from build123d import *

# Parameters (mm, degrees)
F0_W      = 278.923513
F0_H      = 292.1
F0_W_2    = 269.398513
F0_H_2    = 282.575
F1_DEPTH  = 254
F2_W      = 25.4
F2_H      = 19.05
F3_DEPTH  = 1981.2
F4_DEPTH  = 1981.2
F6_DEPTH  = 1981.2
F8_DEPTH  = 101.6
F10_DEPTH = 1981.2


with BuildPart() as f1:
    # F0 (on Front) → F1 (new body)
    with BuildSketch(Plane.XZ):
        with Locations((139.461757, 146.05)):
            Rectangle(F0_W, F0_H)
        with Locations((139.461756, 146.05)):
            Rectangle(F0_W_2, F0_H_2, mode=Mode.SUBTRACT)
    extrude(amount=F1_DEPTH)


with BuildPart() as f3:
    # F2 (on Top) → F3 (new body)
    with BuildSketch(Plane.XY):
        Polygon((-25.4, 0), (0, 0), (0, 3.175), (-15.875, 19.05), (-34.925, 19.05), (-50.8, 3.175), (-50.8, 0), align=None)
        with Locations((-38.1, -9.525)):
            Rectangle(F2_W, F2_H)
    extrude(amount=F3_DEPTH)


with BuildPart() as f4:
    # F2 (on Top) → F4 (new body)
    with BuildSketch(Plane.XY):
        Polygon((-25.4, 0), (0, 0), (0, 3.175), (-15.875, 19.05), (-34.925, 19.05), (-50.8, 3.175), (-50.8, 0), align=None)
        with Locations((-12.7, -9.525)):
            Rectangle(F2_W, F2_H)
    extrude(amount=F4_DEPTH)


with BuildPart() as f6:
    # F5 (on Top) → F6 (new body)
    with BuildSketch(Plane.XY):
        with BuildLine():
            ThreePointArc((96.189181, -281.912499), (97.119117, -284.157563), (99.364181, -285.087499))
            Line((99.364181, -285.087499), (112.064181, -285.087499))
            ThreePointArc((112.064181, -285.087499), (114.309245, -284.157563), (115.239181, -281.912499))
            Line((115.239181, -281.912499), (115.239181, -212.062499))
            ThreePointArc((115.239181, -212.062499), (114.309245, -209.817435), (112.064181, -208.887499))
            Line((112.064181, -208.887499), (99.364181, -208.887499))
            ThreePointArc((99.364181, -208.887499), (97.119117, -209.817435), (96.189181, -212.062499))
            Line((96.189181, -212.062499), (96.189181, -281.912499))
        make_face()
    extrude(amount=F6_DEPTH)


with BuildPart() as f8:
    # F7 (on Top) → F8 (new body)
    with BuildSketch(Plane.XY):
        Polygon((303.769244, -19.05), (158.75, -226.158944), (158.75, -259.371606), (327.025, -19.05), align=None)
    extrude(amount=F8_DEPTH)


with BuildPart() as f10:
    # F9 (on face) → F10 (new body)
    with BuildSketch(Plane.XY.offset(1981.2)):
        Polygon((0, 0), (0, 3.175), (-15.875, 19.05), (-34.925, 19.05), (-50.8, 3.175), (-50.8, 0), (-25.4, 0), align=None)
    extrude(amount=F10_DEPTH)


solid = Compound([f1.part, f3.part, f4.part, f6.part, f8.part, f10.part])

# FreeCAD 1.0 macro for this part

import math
import FreeCAD as App
import Part
import Sketcher
Q = App.Units.Quantity

doc = App.newDocument("Part")
params = doc.addObject("Spreadsheet::Sheet", "Params")
for row, (alias, value) in enumerate([
    ("sketch1_height", "11.5 in"),
    ("sketch1_height2", "11.125 in"),
    ("pad1_length", "10 in"),
    ("sketch2_width", "1 in"),
    ("sketch2_width2", "0.75 in"),
    ("pad2_length", "78 in"),
    ("sketch3_width", "1 in"),
    ("sketch3_width2", "0.75 in"),
    ("pad3_length", "78 in"),
    ("sketch4_width", "0.5 in"),
    ("sketch4_radius", "0.125 in"),
    ("sketch4_height", "2.75 in"),
    ("pad4_length", "78 in"),
    ("pad5_length", "4 in"),
    ("sketch6_width", "2 in"),
    ("sketch6_width2", "0.75 in"),
    ("sketch6_height", "0.125 in"),
    ("pad6_length", "78 in"),
], start=1):
    params.set(f"A{row}", alias)
    params.set(f"B{row}", "=" + value)
    params.setAlias(f"B{row}", alias)

body = doc.addObject("PartDesign::Body", "Body")

sketch1 = doc.addObject("Sketcher::SketchObject", "Sketch")
body.addObject(sketch1)
sketch1.AttachmentSupport = (doc.XZ_Plane, [""])
sketch1.MapMode = "FlatFace"
sketch1.addGeometry(Part.LineSegment(App.Vector(0, 292, 0), App.Vector(0, 0, 0)), False)
sketch1.addGeometry(Part.LineSegment(App.Vector(0, 0, 0), App.Vector(279, 0, 0)), False)
sketch1.addGeometry(Part.LineSegment(App.Vector(279, 0, 0), App.Vector(279, 292, 0)), False)
sketch1.addGeometry(Part.LineSegment(App.Vector(279, 292, 0), App.Vector(0, 292, 0)), False)
sketch1.addGeometry(Part.LineSegment(App.Vector(274, 5, 0), App.Vector(5, 5, 0)), False)
sketch1.addGeometry(Part.LineSegment(App.Vector(5, 5, 0), App.Vector(5, 287, 0)), False)
sketch1.addGeometry(Part.LineSegment(App.Vector(5, 287, 0), App.Vector(274, 287, 0)), False)
sketch1.addGeometry(Part.LineSegment(App.Vector(274, 287, 0), App.Vector(274, 5, 0)), False)
sketch1.addConstraint(Sketcher.Constraint("Coincident", 0, 2, 1, 1))
sketch1.addConstraint(Sketcher.Constraint("Coincident", 1, 2, 2, 1))
sketch1.addConstraint(Sketcher.Constraint("Coincident", 2, 2, 3, 1))
sketch1.addConstraint(Sketcher.Constraint("Coincident", 3, 2, 0, 1))
sketch1.addConstraint(Sketcher.Constraint("Coincident", 4, 2, 5, 1))
sketch1.addConstraint(Sketcher.Constraint("Coincident", 5, 2, 6, 1))
sketch1.addConstraint(Sketcher.Constraint("Coincident", 6, 2, 7, 1))
sketch1.addConstraint(Sketcher.Constraint("Coincident", 7, 2, 4, 1))
sketch1.addConstraint(Sketcher.Constraint("Vertical", 0))
sketch1.addConstraint(Sketcher.Constraint("Horizontal", 1))
sketch1.addConstraint(Sketcher.Constraint("Vertical", 2))
sketch1.addConstraint(Sketcher.Constraint("Horizontal", 3))
sketch1.addConstraint(Sketcher.Constraint("Horizontal", 4))
sketch1.addConstraint(Sketcher.Constraint("Vertical", 5))
sketch1.addConstraint(Sketcher.Constraint("Horizontal", 6))
sketch1.addConstraint(Sketcher.Constraint("Vertical", 7))
sketch1.addConstraint(Sketcher.Constraint("Coincident", 0, 2, -1, 1))
sketch1.addConstraint(Sketcher.Constraint("DistanceY", 0, 2, 0, 1, Q("11.5 in")))
sketch1.addConstraint(Sketcher.Constraint("DistanceY", 5, 1, 5, 2, Q("11.125 in")))
sketch1.addConstraint(Sketcher.Constraint("DistanceX", -1, 1, 4, 2, Q("0.1875 in")))
sketch1.addConstraint(Sketcher.Constraint("DistanceY", -1, 1, 4, 2, Q("0.1875 in")))
sketch1.addConstraint(Sketcher.Constraint("DistanceX", 6, 2, 2, 2, Q("0.1875 in")))
sketch1.addConstraint(Sketcher.Constraint("DistanceX", 1, 1, 1, 2, 278.923513))
sketch1.setExpression("Constraints[17]", "Params.sketch1_height")
sketch1.setExpression("Constraints[18]", "Params.sketch1_height2")
pad1 = doc.addObject("PartDesign::Pad", "Pad")
body.addObject(pad1)
pad1.Profile = sketch1
pad1.setExpression("Length", "Params.pad1_length")
body2 = doc.addObject("PartDesign::Body", "Body001")

sketch2 = doc.addObject("Sketcher::SketchObject", "Sketch001")
body2.addObject(sketch2)
sketch2.AttachmentSupport = (doc.getObject("XY_Plane001"), [""])
sketch2.MapMode = "FlatFace"
sketch2.addGeometry(Part.LineSegment(App.Vector(0, 0, 0), App.Vector(0, 3.2, 0)), False)
sketch2.addGeometry(Part.LineSegment(App.Vector(0, 3.2, 0), App.Vector(-15.9, 19.1, 0)), False)
sketch2.addGeometry(Part.LineSegment(App.Vector(-15.9, 19.1, 0), App.Vector(-34.9, 19.1, 0)), False)
sketch2.addGeometry(Part.LineSegment(App.Vector(-34.9, 19.1, 0), App.Vector(-50.8, 3.2, 0)), False)
sketch2.addGeometry(Part.LineSegment(App.Vector(-50.8, 3.2, 0), App.Vector(-50.8, -19.1, 0)), False)
sketch2.addGeometry(Part.LineSegment(App.Vector(-50.8, -19.1, 0), App.Vector(-25.4, -19.1, 0)), False)
sketch2.addGeometry(Part.LineSegment(App.Vector(-25.4, -19.1, 0), App.Vector(-25.4, 0, 0)), False)
sketch2.addGeometry(Part.LineSegment(App.Vector(-25.4, 0, 0), App.Vector(0, 0, 0)), False)
sketch2.addConstraint(Sketcher.Constraint("Coincident", 0, 2, 1, 1))
sketch2.addConstraint(Sketcher.Constraint("Coincident", 1, 2, 2, 1))
sketch2.addConstraint(Sketcher.Constraint("Coincident", 2, 2, 3, 1))
sketch2.addConstraint(Sketcher.Constraint("Coincident", 3, 2, 4, 1))
sketch2.addConstraint(Sketcher.Constraint("Coincident", 4, 2, 5, 1))
sketch2.addConstraint(Sketcher.Constraint("Coincident", 5, 2, 6, 1))
sketch2.addConstraint(Sketcher.Constraint("Coincident", 6, 2, 7, 1))
sketch2.addConstraint(Sketcher.Constraint("Coincident", 7, 2, 0, 1))
sketch2.addConstraint(Sketcher.Constraint("Vertical", 0))
sketch2.addConstraint(Sketcher.Constraint("Horizontal", 2))
sketch2.addConstraint(Sketcher.Constraint("Vertical", 4))
sketch2.addConstraint(Sketcher.Constraint("Horizontal", 5))
sketch2.addConstraint(Sketcher.Constraint("Vertical", 6))
sketch2.addConstraint(Sketcher.Constraint("Horizontal", 7))
sketch2.addConstraint(Sketcher.Constraint("Coincident", 7, 2, -1, 1))
sketch2.addConstraint(Sketcher.Constraint("Perpendicular", 1, 3))
sketch2.addConstraint(Sketcher.Constraint("Horizontal", 0, 2, 3, 2))
sketch2.addConstraint(Sketcher.Constraint("Equal", 5, 7))
sketch2.addConstraint(Sketcher.Constraint("Equal", 2, 6))
sketch2.addConstraint(Sketcher.Constraint("Equal", 1, 3))
sketch2.addConstraint(Sketcher.Constraint("DistanceX", 5, 1, 5, 2, Q("1 in")))
sketch2.addConstraint(Sketcher.Constraint("DistanceX", 2, 2, 2, 1, Q("0.75 in")))
sketch2.addConstraint(Sketcher.Constraint("DistanceY", 4, 2, 2, 2, Q("1.5 in")))
sketch2.setExpression("Constraints[20]", "Params.sketch2_width")
sketch2.setExpression("Constraints[21]", "Params.sketch2_width2")
pad2 = doc.addObject("PartDesign::Pad", "Pad001")
body2.addObject(pad2)
pad2.Profile = sketch2
pad2.setExpression("Length", "Params.pad2_length")
body3 = doc.addObject("PartDesign::Body", "Body002")

sketch3 = doc.addObject("Sketcher::SketchObject", "Sketch002")
body3.addObject(sketch3)
sketch3.AttachmentSupport = (doc.getObject("XY_Plane002"), [""])
sketch3.MapMode = "FlatFace"
sketch3.addGeometry(Part.LineSegment(App.Vector(0, 3.2, 0), App.Vector(-15.9, 19.1, 0)), False)
sketch3.addGeometry(Part.LineSegment(App.Vector(-15.9, 19.1, 0), App.Vector(-34.9, 19.1, 0)), False)
sketch3.addGeometry(Part.LineSegment(App.Vector(-34.9, 19.1, 0), App.Vector(-50.8, 3.2, 0)), False)
sketch3.addGeometry(Part.LineSegment(App.Vector(-50.8, 3.2, 0), App.Vector(-50.8, 0, 0)), False)
sketch3.addGeometry(Part.LineSegment(App.Vector(-50.8, 0, 0), App.Vector(-25.4, 0, 0)), False)
sketch3.addGeometry(Part.LineSegment(App.Vector(-25.4, 0, 0), App.Vector(-25.4, -19.1, 0)), False)
sketch3.addGeometry(Part.LineSegment(App.Vector(-25.4, -19.1, 0), App.Vector(0, -19.1, 0)), False)
sketch3.addGeometry(Part.LineSegment(App.Vector(0, -19.1, 0), App.Vector(0, 3.2, 0)), False)
sketch3.addConstraint(Sketcher.Constraint("Coincident", 0, 2, 1, 1))
sketch3.addConstraint(Sketcher.Constraint("Coincident", 1, 2, 2, 1))
sketch3.addConstraint(Sketcher.Constraint("Coincident", 2, 2, 3, 1))
sketch3.addConstraint(Sketcher.Constraint("Coincident", 3, 2, 4, 1))
sketch3.addConstraint(Sketcher.Constraint("Coincident", 4, 2, 5, 1))
sketch3.addConstraint(Sketcher.Constraint("Coincident", 5, 2, 6, 1))
sketch3.addConstraint(Sketcher.Constraint("Coincident", 6, 2, 7, 1))
sketch3.addConstraint(Sketcher.Constraint("Coincident", 7, 2, 0, 1))
sketch3.addConstraint(Sketcher.Constraint("Horizontal", 1))
sketch3.addConstraint(Sketcher.Constraint("Vertical", 3))
sketch3.addConstraint(Sketcher.Constraint("Horizontal", 4))
sketch3.addConstraint(Sketcher.Constraint("Vertical", 5))
sketch3.addConstraint(Sketcher.Constraint("Horizontal", 6))
sketch3.addConstraint(Sketcher.Constraint("Vertical", 7))
sketch3.addConstraint(Sketcher.Constraint("PointOnObject", 3, 2, -1))
sketch3.addConstraint(Sketcher.Constraint("PointOnObject", 6, 2, -2))
sketch3.addConstraint(Sketcher.Constraint("Perpendicular", 0, 2))
sketch3.addConstraint(Sketcher.Constraint("Horizontal", 2, 2, 7, 2))
sketch3.addConstraint(Sketcher.Constraint("Equal", 4, 6))
sketch3.addConstraint(Sketcher.Constraint("Equal", 1, 5))
sketch3.addConstraint(Sketcher.Constraint("Equal", 0, 2))
sketch3.addConstraint(Sketcher.Constraint("DistanceX", 4, 1, 4, 2, Q("1 in")))
sketch3.addConstraint(Sketcher.Constraint("DistanceX", 1, 2, 1, 1, Q("0.75 in")))
sketch3.addConstraint(Sketcher.Constraint("DistanceY", 5, 2, 0, 2, Q("1.5 in")))
sketch3.setExpression("Constraints[21]", "Params.sketch3_width")
sketch3.setExpression("Constraints[22]", "Params.sketch3_width2")
pad3 = doc.addObject("PartDesign::Pad", "Pad002")
body3.addObject(pad3)
pad3.Profile = sketch3
pad3.setExpression("Length", "Params.pad3_length")
body4 = doc.addObject("PartDesign::Body", "Body003")

sketch4 = doc.addObject("Sketcher::SketchObject", "Sketch003")
body4.addObject(sketch4)
sketch4.AttachmentSupport = (doc.getObject("XY_Plane003"), [""])
sketch4.MapMode = "FlatFace"
sketch4.addGeometry(Part.ArcOfCircle(Part.Circle(App.Vector(99.4, -281.9, 0), App.Vector(0, 0, 1), 3.2), math.radians(-180), math.radians(-90)), False)
sketch4.addGeometry(Part.LineSegment(App.Vector(99.4, -285.1, 0), App.Vector(112.1, -285.1, 0)), False)
sketch4.addGeometry(Part.ArcOfCircle(Part.Circle(App.Vector(112.1, -281.9, 0), App.Vector(0, 0, 1), 3.2), math.radians(-90), math.radians(0)), False)
sketch4.addGeometry(Part.LineSegment(App.Vector(115.2, -281.9, 0), App.Vector(115.2, -212.1, 0)), False)
sketch4.addGeometry(Part.ArcOfCircle(Part.Circle(App.Vector(112.1, -212.1, 0), App.Vector(0, 0, 1), 3.2), math.radians(0), math.radians(90)), False)
sketch4.addGeometry(Part.LineSegment(App.Vector(112.1, -208.9, 0), App.Vector(99.4, -208.9, 0)), False)
sketch4.addGeometry(Part.ArcOfCircle(Part.Circle(App.Vector(99.4, -212.1, 0), App.Vector(0, 0, 1), 3.2), math.radians(90), math.radians(180)), False)
sketch4.addGeometry(Part.LineSegment(App.Vector(96.2, -212.1, 0), App.Vector(96.2, -281.9, 0)), False)
sketch4.addConstraint(Sketcher.Constraint("Tangent", 0, 2, 1, 1))
sketch4.addConstraint(Sketcher.Constraint("Tangent", 1, 2, 2, 1))
sketch4.addConstraint(Sketcher.Constraint("Tangent", 2, 2, 3, 1))
sketch4.addConstraint(Sketcher.Constraint("Tangent", 3, 2, 4, 1))
sketch4.addConstraint(Sketcher.Constraint("Tangent", 4, 2, 5, 1))
sketch4.addConstraint(Sketcher.Constraint("Tangent", 5, 2, 6, 1))
sketch4.addConstraint(Sketcher.Constraint("Tangent", 6, 2, 7, 1))
sketch4.addConstraint(Sketcher.Constraint("Tangent", 7, 2, 0, 1))
sketch4.addConstraint(Sketcher.Constraint("Horizontal", 1))
sketch4.addConstraint(Sketcher.Constraint("Vertical", 3))
sketch4.addConstraint(Sketcher.Constraint("Horizontal", 5))
sketch4.addConstraint(Sketcher.Constraint("Vertical", 7))
sketch4.addConstraint(Sketcher.Constraint("Equal", 0, 2))
sketch4.addConstraint(Sketcher.Constraint("Equal", 2, 4))
sketch4.addConstraint(Sketcher.Constraint("Equal", 4, 6))
sketch4.addConstraint(Sketcher.Constraint("DistanceX", 1, 1, 1, 2, Q("0.5 in")))
sketch4.addConstraint(Sketcher.Constraint("Radius", 0, Q("0.125 in")))
sketch4.addConstraint(Sketcher.Constraint("DistanceY", 3, 1, 3, 2, Q("2.75 in")))
sketch4.addConstraint(Sketcher.Constraint("DistanceY", 0, 3, -1, 1, 281.912499))
sketch4.addConstraint(Sketcher.Constraint("DistanceX", -1, 1, 0, 3, 99.364181))
sketch4.setExpression("Constraints[15]", "Params.sketch4_width")
sketch4.setExpression("Constraints[16]", "Params.sketch4_radius")
sketch4.setExpression("Constraints[17]", "Params.sketch4_height")
pad4 = doc.addObject("PartDesign::Pad", "Pad003")
body4.addObject(pad4)
pad4.Profile = sketch4
pad4.setExpression("Length", "Params.pad4_length")
body5 = doc.addObject("PartDesign::Body", "Body004")

sketch5 = doc.addObject("Sketcher::SketchObject", "Sketch004")
body5.addObject(sketch5)
sketch5.AttachmentSupport = (doc.getObject("XY_Plane004"), [""])
sketch5.MapMode = "FlatFace"
sketch5.addGeometry(Part.LineSegment(App.Vector(304, -19, 0), App.Vector(159, -226, 0)), False)
sketch5.addGeometry(Part.LineSegment(App.Vector(159, -226, 0), App.Vector(159, -259, 0)), False)
sketch5.addGeometry(Part.LineSegment(App.Vector(159, -259, 0), App.Vector(327, -19, 0)), False)
sketch5.addGeometry(Part.LineSegment(App.Vector(327, -19, 0), App.Vector(304, -19, 0)), False)
sketch5.addConstraint(Sketcher.Constraint("Coincident", 0, 2, 1, 1))
sketch5.addConstraint(Sketcher.Constraint("Coincident", 1, 2, 2, 1))
sketch5.addConstraint(Sketcher.Constraint("Coincident", 2, 2, 3, 1))
sketch5.addConstraint(Sketcher.Constraint("Coincident", 3, 2, 0, 1))
sketch5.addConstraint(Sketcher.Constraint("Vertical", 1))
sketch5.addConstraint(Sketcher.Constraint("Horizontal", 3))
sketch5.addConstraint(Sketcher.Constraint("Parallel", 0, 2))
sketch5.addConstraint(Sketcher.Constraint("Angle", 0, Q("-125 deg")))
sketch5.addConstraint(Sketcher.Constraint("DistanceX", -1, 1, 0, 2, Q("6.25 in")))
sketch5.addConstraint(Sketcher.Constraint("DistanceY", 2, 2, -1, 1, Q("0.75 in")))
sketch5.addConstraint(Sketcher.Constraint("DistanceX", -1, 1, 2, 2, Q("12.875 in")))
sketch5.addConstraint(Sketcher.Constraint("DistanceY", 1, 2, 1, 1, 33.212662))
pad5 = doc.addObject("PartDesign::Pad", "Pad004")
body5.addObject(pad5)
pad5.Profile = sketch5
pad5.setExpression("Length", "Params.pad5_length")
body6 = doc.addObject("PartDesign::Body", "Body005")

sketch6 = doc.addObject("Sketcher::SketchObject", "Sketch005")
body6.addObject(sketch6)
sketch6.AttachmentSupport = (doc.getObject("XY_Plane005"), [""])
sketch6.MapMode = "FlatFace"
sketch6.AttachmentOffset = App.Placement(App.Vector(0, 0, 78 * 25.4), App.Rotation())
sketch6.addGeometry(Part.LineSegment(App.Vector(0, 0, 0), App.Vector(0, 3.2, 0)), False)
sketch6.addGeometry(Part.LineSegment(App.Vector(0, 3.2, 0), App.Vector(-15.9, 19.1, 0)), False)
sketch6.addGeometry(Part.LineSegment(App.Vector(-15.9, 19.1, 0), App.Vector(-34.9, 19.1, 0)), False)
sketch6.addGeometry(Part.LineSegment(App.Vector(-34.9, 19.1, 0), App.Vector(-50.8, 3.2, 0)), False)
sketch6.addGeometry(Part.LineSegment(App.Vector(-50.8, 3.2, 0), App.Vector(-50.8, 0, 0)), False)
sketch6.addGeometry(Part.LineSegment(App.Vector(-50.8, 0, 0), App.Vector(0, 0, 0)), False)
sketch6.addConstraint(Sketcher.Constraint("Coincident", 0, 2, 1, 1))
sketch6.addConstraint(Sketcher.Constraint("Coincident", 1, 2, 2, 1))
sketch6.addConstraint(Sketcher.Constraint("Coincident", 2, 2, 3, 1))
sketch6.addConstraint(Sketcher.Constraint("Coincident", 3, 2, 4, 1))
sketch6.addConstraint(Sketcher.Constraint("Coincident", 4, 2, 5, 1))
sketch6.addConstraint(Sketcher.Constraint("Coincident", 5, 2, 0, 1))
sketch6.addConstraint(Sketcher.Constraint("Vertical", 0))
sketch6.addConstraint(Sketcher.Constraint("Horizontal", 2))
sketch6.addConstraint(Sketcher.Constraint("Vertical", 4))
sketch6.addConstraint(Sketcher.Constraint("Horizontal", 5))
sketch6.addConstraint(Sketcher.Constraint("Coincident", 5, 2, -1, 1))
sketch6.addConstraint(Sketcher.Constraint("Perpendicular", 1, 3))
sketch6.addConstraint(Sketcher.Constraint("Horizontal", 0, 2, 3, 2))
sketch6.addConstraint(Sketcher.Constraint("Equal", 1, 3))
sketch6.addConstraint(Sketcher.Constraint("DistanceX", 5, 1, 5, 2, Q("2 in")))
sketch6.addConstraint(Sketcher.Constraint("DistanceX", 2, 2, 2, 1, Q("0.75 in")))
sketch6.addConstraint(Sketcher.Constraint("DistanceY", 0, 1, 0, 2, Q("0.125 in")))
sketch6.setExpression("Constraints[14]", "Params.sketch6_width")
sketch6.setExpression("Constraints[15]", "Params.sketch6_width2")
sketch6.setExpression("Constraints[16]", "Params.sketch6_height")
pad6 = doc.addObject("PartDesign::Pad", "Pad005")
body6.addObject(pad6)
pad6.Profile = sketch6
pad6.setExpression("Length", "Params.pad6_length")

doc.recompute()
